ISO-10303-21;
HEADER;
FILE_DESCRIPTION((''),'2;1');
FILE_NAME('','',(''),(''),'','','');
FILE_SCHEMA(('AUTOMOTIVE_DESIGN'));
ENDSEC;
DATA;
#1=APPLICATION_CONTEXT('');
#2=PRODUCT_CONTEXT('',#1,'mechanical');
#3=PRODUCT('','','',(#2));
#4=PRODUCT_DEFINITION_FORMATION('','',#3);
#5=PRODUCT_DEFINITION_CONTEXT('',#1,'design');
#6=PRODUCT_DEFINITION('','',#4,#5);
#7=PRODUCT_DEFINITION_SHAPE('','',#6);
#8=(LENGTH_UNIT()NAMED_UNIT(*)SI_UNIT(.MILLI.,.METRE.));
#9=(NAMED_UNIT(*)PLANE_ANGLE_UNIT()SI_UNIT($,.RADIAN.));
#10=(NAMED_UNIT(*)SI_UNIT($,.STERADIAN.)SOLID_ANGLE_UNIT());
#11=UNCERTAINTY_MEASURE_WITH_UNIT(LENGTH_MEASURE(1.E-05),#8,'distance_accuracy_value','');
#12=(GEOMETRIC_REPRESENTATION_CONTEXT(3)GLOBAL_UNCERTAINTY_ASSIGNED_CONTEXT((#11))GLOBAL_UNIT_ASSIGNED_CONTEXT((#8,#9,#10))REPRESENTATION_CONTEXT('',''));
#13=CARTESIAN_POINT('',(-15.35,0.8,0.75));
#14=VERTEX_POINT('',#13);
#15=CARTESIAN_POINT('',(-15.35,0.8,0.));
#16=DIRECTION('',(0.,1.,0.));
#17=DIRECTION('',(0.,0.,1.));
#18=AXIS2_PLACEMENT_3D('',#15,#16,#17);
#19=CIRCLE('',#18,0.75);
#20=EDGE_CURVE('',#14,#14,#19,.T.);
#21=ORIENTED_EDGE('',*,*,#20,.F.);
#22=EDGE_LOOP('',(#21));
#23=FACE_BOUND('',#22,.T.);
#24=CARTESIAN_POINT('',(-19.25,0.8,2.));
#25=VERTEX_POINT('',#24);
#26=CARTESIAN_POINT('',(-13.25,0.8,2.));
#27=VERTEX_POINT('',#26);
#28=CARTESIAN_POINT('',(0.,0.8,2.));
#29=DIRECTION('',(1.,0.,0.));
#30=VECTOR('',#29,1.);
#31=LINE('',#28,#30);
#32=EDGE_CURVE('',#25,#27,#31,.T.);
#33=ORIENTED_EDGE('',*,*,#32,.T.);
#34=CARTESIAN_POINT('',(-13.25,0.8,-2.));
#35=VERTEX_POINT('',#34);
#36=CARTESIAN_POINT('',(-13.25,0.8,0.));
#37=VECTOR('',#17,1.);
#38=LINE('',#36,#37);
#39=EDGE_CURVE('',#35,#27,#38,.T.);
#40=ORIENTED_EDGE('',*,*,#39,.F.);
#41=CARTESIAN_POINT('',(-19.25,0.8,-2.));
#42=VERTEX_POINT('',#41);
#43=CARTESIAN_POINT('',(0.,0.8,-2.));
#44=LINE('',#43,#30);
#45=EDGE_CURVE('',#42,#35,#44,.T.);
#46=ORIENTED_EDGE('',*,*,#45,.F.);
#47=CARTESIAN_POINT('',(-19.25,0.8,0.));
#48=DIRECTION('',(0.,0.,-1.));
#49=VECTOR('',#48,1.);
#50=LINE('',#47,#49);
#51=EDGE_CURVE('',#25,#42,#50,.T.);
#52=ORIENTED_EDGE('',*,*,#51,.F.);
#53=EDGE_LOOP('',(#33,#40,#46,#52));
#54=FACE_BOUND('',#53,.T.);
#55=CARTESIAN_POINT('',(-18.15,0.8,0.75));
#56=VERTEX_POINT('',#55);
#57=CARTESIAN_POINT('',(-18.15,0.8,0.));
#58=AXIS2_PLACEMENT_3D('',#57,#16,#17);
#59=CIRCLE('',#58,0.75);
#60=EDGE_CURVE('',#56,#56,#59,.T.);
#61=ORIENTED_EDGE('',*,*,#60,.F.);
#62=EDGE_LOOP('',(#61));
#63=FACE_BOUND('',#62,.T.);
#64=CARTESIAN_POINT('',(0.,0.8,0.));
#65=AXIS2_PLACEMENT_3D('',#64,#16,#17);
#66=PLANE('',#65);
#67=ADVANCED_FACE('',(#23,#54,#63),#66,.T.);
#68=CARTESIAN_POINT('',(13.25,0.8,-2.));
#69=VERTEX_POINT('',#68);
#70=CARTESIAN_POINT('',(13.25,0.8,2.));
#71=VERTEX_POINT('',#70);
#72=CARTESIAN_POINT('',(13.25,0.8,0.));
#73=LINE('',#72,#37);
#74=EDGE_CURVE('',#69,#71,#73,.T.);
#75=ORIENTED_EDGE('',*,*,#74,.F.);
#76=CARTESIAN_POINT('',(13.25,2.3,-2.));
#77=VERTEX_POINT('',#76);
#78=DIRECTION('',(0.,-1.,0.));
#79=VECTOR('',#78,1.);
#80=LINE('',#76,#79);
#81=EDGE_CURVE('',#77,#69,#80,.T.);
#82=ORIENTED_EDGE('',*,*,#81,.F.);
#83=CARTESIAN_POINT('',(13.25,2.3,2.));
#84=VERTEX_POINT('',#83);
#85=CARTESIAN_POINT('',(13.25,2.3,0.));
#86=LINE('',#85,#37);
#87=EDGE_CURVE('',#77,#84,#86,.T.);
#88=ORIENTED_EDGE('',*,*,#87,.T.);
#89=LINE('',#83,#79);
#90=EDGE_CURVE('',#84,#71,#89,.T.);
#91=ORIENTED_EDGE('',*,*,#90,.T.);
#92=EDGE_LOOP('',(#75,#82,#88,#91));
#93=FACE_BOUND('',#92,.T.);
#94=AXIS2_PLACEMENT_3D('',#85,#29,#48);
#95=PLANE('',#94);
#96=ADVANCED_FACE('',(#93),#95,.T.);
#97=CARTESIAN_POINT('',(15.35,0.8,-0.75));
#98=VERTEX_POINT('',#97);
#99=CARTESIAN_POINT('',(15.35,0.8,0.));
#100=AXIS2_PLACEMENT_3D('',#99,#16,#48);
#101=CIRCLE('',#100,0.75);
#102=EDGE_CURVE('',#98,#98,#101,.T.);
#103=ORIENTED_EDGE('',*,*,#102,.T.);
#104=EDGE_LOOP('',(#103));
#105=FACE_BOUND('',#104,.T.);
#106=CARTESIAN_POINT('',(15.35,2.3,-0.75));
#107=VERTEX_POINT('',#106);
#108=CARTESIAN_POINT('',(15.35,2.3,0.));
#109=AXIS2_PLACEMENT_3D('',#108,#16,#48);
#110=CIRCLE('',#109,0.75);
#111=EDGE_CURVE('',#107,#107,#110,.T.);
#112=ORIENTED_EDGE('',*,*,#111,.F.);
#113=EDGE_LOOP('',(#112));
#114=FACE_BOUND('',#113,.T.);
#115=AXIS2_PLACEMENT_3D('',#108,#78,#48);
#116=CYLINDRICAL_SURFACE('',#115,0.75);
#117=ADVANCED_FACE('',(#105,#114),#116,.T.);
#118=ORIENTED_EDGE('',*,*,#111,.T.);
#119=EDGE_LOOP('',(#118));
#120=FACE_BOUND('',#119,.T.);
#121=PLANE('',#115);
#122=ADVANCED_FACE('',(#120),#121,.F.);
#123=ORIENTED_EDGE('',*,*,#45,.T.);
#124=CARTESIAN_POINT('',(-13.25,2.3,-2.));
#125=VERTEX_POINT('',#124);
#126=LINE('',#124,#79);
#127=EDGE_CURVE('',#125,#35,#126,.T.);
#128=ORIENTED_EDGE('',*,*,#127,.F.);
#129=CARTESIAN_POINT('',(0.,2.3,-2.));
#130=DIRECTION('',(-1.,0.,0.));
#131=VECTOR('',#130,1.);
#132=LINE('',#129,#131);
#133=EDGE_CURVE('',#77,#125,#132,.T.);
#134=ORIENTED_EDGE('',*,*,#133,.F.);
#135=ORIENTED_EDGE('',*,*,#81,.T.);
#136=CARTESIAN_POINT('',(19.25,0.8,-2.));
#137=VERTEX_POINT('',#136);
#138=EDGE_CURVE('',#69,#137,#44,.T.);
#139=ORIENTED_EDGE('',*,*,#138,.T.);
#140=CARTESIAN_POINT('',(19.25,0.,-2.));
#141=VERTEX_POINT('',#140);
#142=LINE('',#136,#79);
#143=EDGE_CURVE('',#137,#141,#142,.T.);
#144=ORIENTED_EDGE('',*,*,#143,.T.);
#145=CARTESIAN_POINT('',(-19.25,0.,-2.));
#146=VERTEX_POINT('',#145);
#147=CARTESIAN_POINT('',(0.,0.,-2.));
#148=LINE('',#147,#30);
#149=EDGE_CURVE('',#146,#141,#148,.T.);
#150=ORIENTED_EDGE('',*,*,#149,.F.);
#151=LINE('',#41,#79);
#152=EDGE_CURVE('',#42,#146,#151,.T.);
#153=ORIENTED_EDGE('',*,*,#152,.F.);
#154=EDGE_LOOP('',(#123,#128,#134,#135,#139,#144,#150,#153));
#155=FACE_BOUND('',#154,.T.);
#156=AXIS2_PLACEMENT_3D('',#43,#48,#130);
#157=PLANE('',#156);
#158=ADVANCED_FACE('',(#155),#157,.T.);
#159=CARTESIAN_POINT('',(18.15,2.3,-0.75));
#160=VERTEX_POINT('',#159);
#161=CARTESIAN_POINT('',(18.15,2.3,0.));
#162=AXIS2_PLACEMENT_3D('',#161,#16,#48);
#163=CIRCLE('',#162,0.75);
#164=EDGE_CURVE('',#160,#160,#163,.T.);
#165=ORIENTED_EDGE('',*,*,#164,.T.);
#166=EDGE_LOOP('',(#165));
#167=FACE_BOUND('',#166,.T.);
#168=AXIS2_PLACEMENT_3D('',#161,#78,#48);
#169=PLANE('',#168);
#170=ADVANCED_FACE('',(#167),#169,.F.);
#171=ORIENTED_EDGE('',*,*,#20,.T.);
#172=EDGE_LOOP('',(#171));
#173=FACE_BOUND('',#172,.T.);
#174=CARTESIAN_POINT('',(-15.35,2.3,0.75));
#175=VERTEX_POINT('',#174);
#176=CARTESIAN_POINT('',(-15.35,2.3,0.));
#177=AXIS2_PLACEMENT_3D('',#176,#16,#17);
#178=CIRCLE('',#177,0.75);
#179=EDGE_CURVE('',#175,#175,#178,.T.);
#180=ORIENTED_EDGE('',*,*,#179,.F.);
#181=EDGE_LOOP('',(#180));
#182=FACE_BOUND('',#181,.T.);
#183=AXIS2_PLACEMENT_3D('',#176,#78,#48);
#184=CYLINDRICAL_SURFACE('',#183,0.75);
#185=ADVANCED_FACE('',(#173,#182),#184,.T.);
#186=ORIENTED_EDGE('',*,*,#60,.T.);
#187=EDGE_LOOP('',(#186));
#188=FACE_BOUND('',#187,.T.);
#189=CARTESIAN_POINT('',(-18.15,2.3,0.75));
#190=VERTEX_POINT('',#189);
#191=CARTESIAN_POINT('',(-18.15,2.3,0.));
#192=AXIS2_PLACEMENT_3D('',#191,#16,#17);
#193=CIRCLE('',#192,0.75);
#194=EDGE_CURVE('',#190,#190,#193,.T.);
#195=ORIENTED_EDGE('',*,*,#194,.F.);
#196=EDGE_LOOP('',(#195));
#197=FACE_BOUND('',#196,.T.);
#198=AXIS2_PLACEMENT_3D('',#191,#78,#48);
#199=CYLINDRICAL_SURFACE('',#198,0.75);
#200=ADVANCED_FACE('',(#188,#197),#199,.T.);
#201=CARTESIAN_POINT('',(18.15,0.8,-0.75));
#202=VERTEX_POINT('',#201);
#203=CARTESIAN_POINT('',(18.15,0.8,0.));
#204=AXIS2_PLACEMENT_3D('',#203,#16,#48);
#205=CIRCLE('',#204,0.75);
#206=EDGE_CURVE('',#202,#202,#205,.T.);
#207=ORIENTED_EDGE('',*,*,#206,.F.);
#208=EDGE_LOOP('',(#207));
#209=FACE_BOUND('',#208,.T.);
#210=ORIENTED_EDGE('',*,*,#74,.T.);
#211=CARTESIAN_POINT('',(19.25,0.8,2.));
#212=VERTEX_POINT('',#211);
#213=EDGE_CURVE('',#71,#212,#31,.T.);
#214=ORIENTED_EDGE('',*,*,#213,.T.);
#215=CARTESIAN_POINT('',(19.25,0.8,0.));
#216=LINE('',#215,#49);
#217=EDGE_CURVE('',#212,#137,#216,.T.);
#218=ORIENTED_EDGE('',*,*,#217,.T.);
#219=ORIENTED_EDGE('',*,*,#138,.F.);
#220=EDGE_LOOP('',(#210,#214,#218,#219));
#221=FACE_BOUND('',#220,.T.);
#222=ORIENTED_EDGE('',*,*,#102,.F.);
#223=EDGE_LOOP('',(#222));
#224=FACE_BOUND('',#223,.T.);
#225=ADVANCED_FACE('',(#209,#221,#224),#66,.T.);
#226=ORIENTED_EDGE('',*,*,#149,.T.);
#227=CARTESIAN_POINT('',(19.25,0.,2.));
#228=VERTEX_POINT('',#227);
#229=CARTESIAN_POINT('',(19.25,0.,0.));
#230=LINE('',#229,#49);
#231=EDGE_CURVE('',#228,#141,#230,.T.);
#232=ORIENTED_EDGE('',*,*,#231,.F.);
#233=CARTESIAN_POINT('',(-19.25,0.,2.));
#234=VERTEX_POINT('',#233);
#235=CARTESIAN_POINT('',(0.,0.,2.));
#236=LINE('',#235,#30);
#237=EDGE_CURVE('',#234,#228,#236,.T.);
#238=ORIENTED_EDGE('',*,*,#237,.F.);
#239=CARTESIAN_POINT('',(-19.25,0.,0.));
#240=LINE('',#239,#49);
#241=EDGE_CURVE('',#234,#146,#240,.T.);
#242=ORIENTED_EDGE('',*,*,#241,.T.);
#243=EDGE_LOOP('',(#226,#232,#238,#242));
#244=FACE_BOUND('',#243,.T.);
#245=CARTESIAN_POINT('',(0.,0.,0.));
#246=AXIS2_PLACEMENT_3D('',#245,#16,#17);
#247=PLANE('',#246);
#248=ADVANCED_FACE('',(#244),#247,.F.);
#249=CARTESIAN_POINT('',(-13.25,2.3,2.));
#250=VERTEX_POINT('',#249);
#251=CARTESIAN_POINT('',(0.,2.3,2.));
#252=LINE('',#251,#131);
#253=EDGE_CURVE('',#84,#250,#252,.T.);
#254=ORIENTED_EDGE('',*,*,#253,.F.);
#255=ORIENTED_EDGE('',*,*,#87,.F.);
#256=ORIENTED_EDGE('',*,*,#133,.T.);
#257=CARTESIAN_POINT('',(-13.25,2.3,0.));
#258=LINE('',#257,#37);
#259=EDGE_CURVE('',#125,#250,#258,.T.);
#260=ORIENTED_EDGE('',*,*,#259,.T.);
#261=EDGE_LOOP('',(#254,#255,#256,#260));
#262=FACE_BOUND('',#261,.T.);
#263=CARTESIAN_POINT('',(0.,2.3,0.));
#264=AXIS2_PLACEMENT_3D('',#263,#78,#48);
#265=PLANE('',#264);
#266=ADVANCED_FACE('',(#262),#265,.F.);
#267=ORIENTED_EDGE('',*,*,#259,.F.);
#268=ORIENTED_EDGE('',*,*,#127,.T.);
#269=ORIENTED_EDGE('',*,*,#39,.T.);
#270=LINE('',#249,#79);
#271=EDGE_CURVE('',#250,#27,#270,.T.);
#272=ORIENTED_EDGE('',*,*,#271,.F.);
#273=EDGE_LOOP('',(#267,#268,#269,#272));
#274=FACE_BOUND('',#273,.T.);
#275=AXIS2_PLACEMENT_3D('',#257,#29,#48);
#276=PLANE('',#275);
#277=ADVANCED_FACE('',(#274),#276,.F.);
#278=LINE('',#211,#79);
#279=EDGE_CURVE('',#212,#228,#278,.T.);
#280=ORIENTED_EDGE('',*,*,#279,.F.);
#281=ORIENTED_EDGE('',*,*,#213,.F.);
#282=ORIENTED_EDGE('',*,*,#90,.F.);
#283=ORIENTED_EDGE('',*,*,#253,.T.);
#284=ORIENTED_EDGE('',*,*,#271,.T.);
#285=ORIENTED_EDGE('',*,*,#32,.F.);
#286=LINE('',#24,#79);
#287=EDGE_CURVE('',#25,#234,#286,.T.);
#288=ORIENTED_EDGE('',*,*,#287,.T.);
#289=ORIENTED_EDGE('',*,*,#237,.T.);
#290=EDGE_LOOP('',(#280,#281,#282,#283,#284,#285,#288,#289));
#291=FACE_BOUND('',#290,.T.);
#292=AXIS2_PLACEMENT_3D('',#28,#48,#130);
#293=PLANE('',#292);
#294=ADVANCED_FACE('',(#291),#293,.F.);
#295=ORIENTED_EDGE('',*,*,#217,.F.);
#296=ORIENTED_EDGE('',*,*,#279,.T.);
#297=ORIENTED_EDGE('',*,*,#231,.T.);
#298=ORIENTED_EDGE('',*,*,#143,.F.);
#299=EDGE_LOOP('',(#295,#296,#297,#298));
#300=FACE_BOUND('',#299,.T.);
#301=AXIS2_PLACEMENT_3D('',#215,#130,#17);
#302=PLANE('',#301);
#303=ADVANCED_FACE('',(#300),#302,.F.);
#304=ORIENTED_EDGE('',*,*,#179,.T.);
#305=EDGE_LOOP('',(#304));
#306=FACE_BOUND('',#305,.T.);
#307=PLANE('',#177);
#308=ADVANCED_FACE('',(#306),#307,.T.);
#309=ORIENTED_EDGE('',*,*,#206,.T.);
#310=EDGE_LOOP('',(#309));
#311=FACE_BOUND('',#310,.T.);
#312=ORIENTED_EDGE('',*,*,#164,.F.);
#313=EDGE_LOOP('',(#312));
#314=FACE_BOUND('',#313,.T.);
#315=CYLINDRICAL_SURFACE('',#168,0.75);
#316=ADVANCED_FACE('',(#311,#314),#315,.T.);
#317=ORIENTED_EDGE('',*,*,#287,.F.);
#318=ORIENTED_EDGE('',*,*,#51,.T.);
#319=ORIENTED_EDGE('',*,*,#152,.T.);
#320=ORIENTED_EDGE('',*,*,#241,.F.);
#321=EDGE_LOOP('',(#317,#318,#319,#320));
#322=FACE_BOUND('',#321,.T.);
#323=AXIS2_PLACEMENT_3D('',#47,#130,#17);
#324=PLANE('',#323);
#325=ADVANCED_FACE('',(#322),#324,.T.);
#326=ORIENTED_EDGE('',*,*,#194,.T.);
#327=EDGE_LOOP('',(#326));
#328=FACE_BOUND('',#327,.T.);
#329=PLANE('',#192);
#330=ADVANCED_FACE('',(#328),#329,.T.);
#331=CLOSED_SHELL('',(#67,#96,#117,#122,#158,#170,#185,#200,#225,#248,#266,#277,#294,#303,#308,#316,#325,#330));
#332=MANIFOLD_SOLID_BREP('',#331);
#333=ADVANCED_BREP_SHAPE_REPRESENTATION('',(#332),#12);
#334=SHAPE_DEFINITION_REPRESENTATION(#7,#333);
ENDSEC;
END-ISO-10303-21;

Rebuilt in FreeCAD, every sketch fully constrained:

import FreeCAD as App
import Part
import Sketcher
Q = App.Units.Quantity

doc = App.newDocument("Part")
body = doc.addObject("PartDesign::Body", "Body")

sketch1 = doc.addObject("Sketcher::SketchObject", "Sketch")
body.addObject(sketch1)
sketch1.AttachmentSupport = (doc.XZ_Plane, [""])
sketch1.MapMode = "FlatFace"
sketch1.addGeometry(Part.LineSegment(App.Vector(-19.2, -2, 0), App.Vector(-19.2, 2, 0)), False)
sketch1.addGeometry(Part.LineSegment(App.Vector(-19.2, 2, 0), App.Vector(19.2, 2, 0)), False)
sketch1.addGeometry(Part.LineSegment(App.Vector(19.2, 2, 0), App.Vector(19.2, -2, 0)), False)
sketch1.addGeometry(Part.LineSegment(App.Vector(19.2, -2, 0), App.Vector(-19.2, -2, 0)), False)
sketch1.addConstraint(Sketcher.Constraint("Coincident", 0, 2, 1, 1))
sketch1.addConstraint(Sketcher.Constraint("Coincident", 1, 2, 2, 1))
sketch1.addConstraint(Sketcher.Constraint("Coincident", 2, 2, 3, 1))
sketch1.addConstraint(Sketcher.Constraint("Coincident", 3, 2, 0, 1))
sketch1.addConstraint(Sketcher.Constraint("Vertical", 0))
sketch1.addConstraint(Sketcher.Constraint("Horizontal", 1))
sketch1.addConstraint(Sketcher.Constraint("Vertical", 2))
sketch1.addConstraint(Sketcher.Constraint("Horizontal", 3))
sketch1.addConstraint(Sketcher.Constraint("Symmetric", 0, 2, 2, 2, -1, 1))
sketch1.addConstraint(Sketcher.Constraint("DistanceY", 0, 1, 0, 2, Q("4 mm")))
sketch1.addConstraint(Sketcher.Constraint("DistanceX", 1, 1, 1, 2, Q("38.5 mm")))
pad1 = doc.addObject("PartDesign::Pad", "Pad")
body.addObject(pad1)
pad1.Profile = sketch1
pad1.Length = 0.8
pad1.Reversed = True

sketch2 = doc.addObject("Sketcher::SketchObject", "Sketch001")
body.addObject(sketch2)
sketch2.AttachmentSupport = (doc.XZ_Plane, [""])
sketch2.MapMode = "FlatFace"
sketch2.AttachmentOffset = App.Placement(App.Vector(0, 0, -0.8), App.Rotation())
sketch2.addGeometry(Part.LineSegment(App.Vector(-13.2, -2, 0), App.Vector(-13.2, 2, 0)), False)
sketch2.addGeometry(Part.LineSegment(App.Vector(-13.2, 2, 0), App.Vector(13.2, 2, 0)), False)
sketch2.addGeometry(Part.LineSegment(App.Vector(13.2, 2, 0), App.Vector(13.2, -2, 0)), False)
sketch2.addGeometry(Part.LineSegment(App.Vector(13.2, -2, 0), App.Vector(-13.2, -2, 0)), False)
sketch2.addConstraint(Sketcher.Constraint("Coincident", 0, 2, 1, 1))
sketch2.addConstraint(Sketcher.Constraint("Coincident", 1, 2, 2, 1))
sketch2.addConstraint(Sketcher.Constraint("Coincident", 2, 2, 3, 1))
sketch2.addConstraint(Sketcher.Constraint("Coincident", 3, 2, 0, 1))
sketch2.addConstraint(Sketcher.Constraint("Vertical", 0))
sketch2.addConstraint(Sketcher.Constraint("Horizontal", 1))
sketch2.addConstraint(Sketcher.Constraint("Vertical", 2))
sketch2.addConstraint(Sketcher.Constraint("Horizontal", 3))
sketch2.addConstraint(Sketcher.Constraint("Symmetric", 0, 2, 2, 2, -1, 1))
sketch2.addConstraint(Sketcher.Constraint("DistanceY", 0, 1, 0, 2, Q("4 mm")))
sketch2.addConstraint(Sketcher.Constraint("DistanceX", 1, 1, 1, 2, Q("26.5 mm")))
pad2 = doc.addObject("PartDesign::Pad", "Pad001")
body.addObject(pad2)
pad2.Profile = sketch2
pad2.Length = 1.5
pad2.Reversed = True

sketch3 = doc.addObject("Sketcher::SketchObject", "Sketch002")
body.addObject(sketch3)
sketch3.AttachmentSupport = (doc.XZ_Plane, [""])
sketch3.MapMode = "FlatFace"
sketch3.AttachmentOffset = App.Placement(App.Vector(0, 0, -0.8), App.Rotation())
sketch3.addGeometry(Part.Circle(App.Vector(-15.3, 0, 0), App.Vector(0, 0, 1), 0.8), False)
sketch3.addGeometry(Part.Circle(App.Vector(-18.1, 0, 0), App.Vector(0, 0, 1), 0.8), False)
sketch3.addGeometry(Part.Circle(App.Vector(18.1, 0, 0), App.Vector(0, 0, 1), 0.8), False)
sketch3.addGeometry(Part.Circle(App.Vector(15.3, 0, 0), App.Vector(0, 0, 1), 0.8), False)
sketch3.addConstraint(Sketcher.Constraint("Equal", 0, 1))
sketch3.addConstraint(Sketcher.Constraint("Equal", 1, 2))
sketch3.addConstraint(Sketcher.Constraint("Equal", 2, 3))
sketch3.addConstraint(Sketcher.Constraint("Symmetric", 1, 3, 2, 3, -1, 1))
sketch3.addConstraint(Sketcher.Constraint("Symmetric", 0, 3, 3, 3, -1, 1))
sketch3.addConstraint(Sketcher.Constraint("PointOnObject", 0, 3, -1))
sketch3.addConstraint(Sketcher.Constraint("PointOnObject", 1, 3, -1))
sketch3.addConstraint(Sketcher.Constraint("Diameter", 0, Q("1.5 mm")))
sketch3.addConstraint(Sketcher.Constraint("DistanceX", 1, 3, 0, 3, Q("2.8 mm")))
sketch3.addConstraint(Sketcher.Constraint("DistanceX", 0, 3, 2, 3, Q("33.5 mm")))
pad3 = doc.addObject("PartDesign::Pad", "Pad002")
body.addObject(pad3)
pad3.Profile = sketch3
pad3.Length = 1.5
pad3.Reversed = True

doc.recompute()
